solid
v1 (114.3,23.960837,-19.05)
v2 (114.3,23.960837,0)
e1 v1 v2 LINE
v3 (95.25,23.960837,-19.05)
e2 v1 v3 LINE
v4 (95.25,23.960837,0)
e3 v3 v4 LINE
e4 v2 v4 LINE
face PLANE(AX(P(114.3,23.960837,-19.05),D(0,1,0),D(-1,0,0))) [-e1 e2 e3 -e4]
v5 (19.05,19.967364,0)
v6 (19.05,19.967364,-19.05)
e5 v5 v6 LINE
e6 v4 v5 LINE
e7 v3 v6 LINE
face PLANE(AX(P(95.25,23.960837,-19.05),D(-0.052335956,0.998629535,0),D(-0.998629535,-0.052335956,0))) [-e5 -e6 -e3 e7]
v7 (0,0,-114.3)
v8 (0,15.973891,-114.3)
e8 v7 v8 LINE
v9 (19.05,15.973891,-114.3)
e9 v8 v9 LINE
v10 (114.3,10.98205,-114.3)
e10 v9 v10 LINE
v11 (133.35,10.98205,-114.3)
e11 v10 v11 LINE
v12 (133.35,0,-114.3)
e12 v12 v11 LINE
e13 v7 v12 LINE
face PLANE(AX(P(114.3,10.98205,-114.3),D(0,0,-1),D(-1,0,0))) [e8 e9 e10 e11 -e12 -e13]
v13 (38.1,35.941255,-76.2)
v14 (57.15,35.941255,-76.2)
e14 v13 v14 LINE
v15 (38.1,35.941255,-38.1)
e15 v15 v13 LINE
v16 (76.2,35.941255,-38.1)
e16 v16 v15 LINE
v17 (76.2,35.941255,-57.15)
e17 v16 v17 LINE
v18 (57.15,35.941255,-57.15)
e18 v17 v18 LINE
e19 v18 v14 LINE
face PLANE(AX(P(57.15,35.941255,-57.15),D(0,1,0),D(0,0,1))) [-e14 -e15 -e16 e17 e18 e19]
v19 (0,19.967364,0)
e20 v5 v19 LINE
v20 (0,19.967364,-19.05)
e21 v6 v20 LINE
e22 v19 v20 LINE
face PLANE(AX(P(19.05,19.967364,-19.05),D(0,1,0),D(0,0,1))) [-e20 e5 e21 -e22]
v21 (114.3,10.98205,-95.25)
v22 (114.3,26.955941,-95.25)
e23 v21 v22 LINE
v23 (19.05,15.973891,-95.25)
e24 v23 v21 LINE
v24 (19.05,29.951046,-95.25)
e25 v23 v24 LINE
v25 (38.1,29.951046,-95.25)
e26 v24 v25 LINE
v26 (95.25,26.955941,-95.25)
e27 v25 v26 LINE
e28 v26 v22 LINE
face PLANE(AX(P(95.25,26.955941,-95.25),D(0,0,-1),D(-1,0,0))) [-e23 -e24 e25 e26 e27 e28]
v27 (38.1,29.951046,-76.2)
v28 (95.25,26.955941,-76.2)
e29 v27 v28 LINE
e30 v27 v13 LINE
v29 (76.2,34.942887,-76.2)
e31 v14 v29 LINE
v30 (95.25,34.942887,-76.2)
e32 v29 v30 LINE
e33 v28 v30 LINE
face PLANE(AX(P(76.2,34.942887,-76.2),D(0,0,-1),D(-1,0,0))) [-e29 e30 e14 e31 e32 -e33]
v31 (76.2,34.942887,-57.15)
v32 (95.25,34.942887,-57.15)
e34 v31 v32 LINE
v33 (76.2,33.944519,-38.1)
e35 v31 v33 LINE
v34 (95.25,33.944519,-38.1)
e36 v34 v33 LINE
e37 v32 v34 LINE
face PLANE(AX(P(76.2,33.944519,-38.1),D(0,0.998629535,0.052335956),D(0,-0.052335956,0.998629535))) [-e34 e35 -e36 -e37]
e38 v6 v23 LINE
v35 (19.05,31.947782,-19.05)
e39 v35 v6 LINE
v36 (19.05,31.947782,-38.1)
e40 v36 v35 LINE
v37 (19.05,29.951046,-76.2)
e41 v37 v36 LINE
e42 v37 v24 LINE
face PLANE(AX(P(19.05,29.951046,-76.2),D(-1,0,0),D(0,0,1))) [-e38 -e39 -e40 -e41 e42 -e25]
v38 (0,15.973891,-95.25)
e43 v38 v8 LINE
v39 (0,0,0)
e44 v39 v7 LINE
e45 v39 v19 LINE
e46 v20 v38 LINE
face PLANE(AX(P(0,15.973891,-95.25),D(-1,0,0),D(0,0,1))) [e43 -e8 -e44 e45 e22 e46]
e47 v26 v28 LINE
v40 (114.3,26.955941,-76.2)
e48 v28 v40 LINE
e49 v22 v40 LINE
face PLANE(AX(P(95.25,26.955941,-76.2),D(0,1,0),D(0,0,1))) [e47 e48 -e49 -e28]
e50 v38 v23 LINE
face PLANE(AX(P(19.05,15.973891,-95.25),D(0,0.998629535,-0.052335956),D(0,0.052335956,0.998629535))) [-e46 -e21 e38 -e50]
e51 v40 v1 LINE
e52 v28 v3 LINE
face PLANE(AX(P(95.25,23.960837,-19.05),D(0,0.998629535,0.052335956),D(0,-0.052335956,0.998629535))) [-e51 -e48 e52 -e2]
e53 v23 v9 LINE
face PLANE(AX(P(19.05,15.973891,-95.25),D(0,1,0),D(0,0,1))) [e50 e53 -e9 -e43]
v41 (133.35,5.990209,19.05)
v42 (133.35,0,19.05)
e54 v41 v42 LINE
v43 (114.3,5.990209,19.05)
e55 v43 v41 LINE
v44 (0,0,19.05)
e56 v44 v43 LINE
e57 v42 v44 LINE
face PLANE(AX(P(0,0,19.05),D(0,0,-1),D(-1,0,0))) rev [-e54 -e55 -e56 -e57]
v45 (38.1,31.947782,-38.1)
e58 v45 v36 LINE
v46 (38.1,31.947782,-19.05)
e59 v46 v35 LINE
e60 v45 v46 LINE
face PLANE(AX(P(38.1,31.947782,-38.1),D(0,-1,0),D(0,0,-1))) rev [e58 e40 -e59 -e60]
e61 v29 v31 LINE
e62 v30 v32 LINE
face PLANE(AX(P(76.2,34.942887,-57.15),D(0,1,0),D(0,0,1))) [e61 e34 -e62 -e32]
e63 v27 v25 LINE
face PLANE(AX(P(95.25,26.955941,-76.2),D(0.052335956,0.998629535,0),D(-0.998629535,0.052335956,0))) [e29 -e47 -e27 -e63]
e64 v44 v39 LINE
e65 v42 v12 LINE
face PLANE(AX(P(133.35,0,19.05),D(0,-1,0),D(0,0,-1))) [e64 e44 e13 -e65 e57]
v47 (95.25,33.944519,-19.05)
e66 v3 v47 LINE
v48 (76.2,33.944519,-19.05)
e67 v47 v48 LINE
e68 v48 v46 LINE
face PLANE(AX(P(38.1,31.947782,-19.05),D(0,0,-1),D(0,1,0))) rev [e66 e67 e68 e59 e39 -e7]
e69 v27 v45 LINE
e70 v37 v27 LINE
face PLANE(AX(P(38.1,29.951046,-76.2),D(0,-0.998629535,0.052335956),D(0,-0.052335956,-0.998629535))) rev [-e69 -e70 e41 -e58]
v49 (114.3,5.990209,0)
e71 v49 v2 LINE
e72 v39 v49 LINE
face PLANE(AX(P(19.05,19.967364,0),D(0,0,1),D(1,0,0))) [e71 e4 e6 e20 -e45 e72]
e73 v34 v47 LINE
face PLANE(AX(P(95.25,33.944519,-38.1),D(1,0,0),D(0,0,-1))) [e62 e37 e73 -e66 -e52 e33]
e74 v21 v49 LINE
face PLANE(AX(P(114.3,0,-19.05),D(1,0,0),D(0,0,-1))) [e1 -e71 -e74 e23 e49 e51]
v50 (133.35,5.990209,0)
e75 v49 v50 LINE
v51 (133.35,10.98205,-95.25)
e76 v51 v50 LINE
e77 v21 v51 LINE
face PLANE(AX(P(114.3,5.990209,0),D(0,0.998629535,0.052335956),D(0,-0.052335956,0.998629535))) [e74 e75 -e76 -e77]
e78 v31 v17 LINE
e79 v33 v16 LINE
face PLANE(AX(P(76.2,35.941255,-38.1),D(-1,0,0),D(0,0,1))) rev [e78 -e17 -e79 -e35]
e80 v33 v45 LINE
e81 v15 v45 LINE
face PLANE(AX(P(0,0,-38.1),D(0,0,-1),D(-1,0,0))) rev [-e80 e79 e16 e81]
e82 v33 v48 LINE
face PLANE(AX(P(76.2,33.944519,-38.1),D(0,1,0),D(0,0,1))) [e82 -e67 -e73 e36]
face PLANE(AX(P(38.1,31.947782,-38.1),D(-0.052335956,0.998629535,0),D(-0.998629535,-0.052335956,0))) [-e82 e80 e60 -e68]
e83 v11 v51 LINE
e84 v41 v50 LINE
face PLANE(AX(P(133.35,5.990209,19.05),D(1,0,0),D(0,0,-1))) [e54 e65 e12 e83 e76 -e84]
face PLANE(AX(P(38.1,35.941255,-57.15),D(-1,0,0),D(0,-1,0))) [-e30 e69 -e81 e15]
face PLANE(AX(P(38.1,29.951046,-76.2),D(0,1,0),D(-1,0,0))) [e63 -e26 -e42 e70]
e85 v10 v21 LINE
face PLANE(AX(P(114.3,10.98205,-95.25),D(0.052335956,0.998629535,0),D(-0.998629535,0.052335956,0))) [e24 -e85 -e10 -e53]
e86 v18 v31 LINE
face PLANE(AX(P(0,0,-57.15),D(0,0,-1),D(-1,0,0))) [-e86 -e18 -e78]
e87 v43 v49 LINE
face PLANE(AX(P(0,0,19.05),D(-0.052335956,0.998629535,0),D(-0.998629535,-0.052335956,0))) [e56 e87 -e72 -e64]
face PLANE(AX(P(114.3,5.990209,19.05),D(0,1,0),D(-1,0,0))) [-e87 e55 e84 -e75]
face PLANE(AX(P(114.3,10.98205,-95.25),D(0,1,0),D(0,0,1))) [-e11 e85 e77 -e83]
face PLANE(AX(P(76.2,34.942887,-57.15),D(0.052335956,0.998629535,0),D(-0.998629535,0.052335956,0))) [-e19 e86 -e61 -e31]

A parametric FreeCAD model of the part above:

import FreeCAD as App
import Part
import Sketcher

V = App.Vector
Q = App.Units.Quantity


def add_polygon(sketch, points):
    """Adds a closed chain of lines whose ends are joined by coincident constraints."""
    first, n = sketch.GeometryCount, len(points)
    for a, b in zip(points, points[1:] + points[:1]):
        sketch.addGeometry(Part.LineSegment(App.Vector(*a, 0), App.Vector(*b, 0)), False)
    for i in range(n):
        sketch.addConstraint(Sketcher.Constraint("Coincident", first + i, 2, first + (i + 1) % n, 1))

doc = App.newDocument("Part")
body = doc.addObject("PartDesign::Body", "Body")

# Sketch on XY plane
sketch1 = body.newObject("Sketcher::SketchObject", "Sketch")
sketch1.AttachmentSupport = (doc.getObject("XY_Plane"), [""])
sketch1.MapMode = "FlatFace"
add_polygon(sketch1, [(114, 6), (0, 0), (133, 0), (133, 6)])  # lines 0-3
sketch1.addConstraint(Sketcher.Constraint("Horizontal", 1))
sketch1.addConstraint(Sketcher.Constraint("Vertical", 2))
sketch1.addConstraint(Sketcher.Constraint("Horizontal", 3))
sketch1.addConstraint(Sketcher.Constraint("Coincident", 0, 2, -1, 1))
sketch1.addConstraint(Sketcher.Constraint("Angle", 0, Q("-177 deg")))
sketch1.addConstraint(Sketcher.Constraint("DistanceX", 1, 1, 1, 2, Q("5.25 in")))
sketch1.addConstraint(Sketcher.Constraint("DistanceX", 3, 2, 3, 1, Q("0.75 in")))
pad1 = body.newObject("PartDesign::Pad", "Pad")
pad1.Profile = sketch1
pad1.Length = Q("0.75 in")

# Sketch on YZ plane
sketch2 = body.newObject("Sketcher::SketchObject", "Sketch001")
sketch2.AttachmentSupport = (doc.getObject("YZ_Plane"), [""])
sketch2.MapMode = "FlatFace"
sketch2.AttachmentOffset = App.Placement(V(0, 0, 5.25 * 25.4), App.Rotation())
add_polygon(sketch2, [(6, 0), (0, 0), (0, -114), (11, -114), (11, -95)])  # lines 0-4
sketch2.addConstraint(Sketcher.Constraint("Horizontal", 0))
sketch2.addConstraint(Sketcher.Constraint("Vertical", 1))
sketch2.addConstraint(Sketcher.Constraint("Horizontal", 2))
sketch2.addConstraint(Sketcher.Constraint("Vertical", 3))
sketch2.addConstraint(Sketcher.Constraint("Coincident", 0, 2, -1, 1))
sketch2.addConstraint(Sketcher.Constraint("DistanceY", 1, 2, 1, 1, Q("4.5 in")))
sketch2.addConstraint(Sketcher.Constraint("Angle", 4, Q("93 deg")))
sketch2.addConstraint(Sketcher.Constraint("DistanceY", 3, 1, 3, 2, Q("0.75 in")))
sketch2.addConstraint(Sketcher.Constraint("DistanceX", 0, 2, 0, 1, 5.990209))
pad2 = body.newObject("PartDesign::Pad", "Pad001")
pad2.Profile = sketch2
pad2.Length = Q("0.75 in")
pad2.Reversed = True

# Sketch on XY plane
sketch3 = body.newObject("Sketcher::SketchObject", "Sketch002")
sketch3.AttachmentSupport = (doc.getObject("XY_Plane"), [""])
sketch3.MapMode = "FlatFace"
sketch3.AttachmentOffset = App.Placement(V(0, 0, -4.5 * 25.4), App.Rotation())
add_polygon(sketch3, [(114, 11), (114, 0), (0, 0), (0, 16), (19, 16)])  # lines 0-4
sketch3.addConstraint(Sketcher.Constraint("Vertical", 0))
sketch3.addConstraint(Sketcher.Constraint("Horizontal", 1))
sketch3.addConstraint(Sketcher.Constraint("Vertical", 2))
sketch3.addConstraint(Sketcher.Constraint("Horizontal", 3))
sketch3.addConstraint(Sketcher.Constraint("Coincident", 1, 2, -1, 1))
sketch3.addConstraint(Sketcher.Constraint("DistanceX", 1, 2, 1, 1, Q("4.5 in")))
sketch3.addConstraint(Sketcher.Constraint("Angle", 4, Q("-3 deg")))
sketch3.addConstraint(Sketcher.Constraint("DistanceX", 3, 1, 3, 2, Q("0.75 in")))
sketch3.addConstraint(Sketcher.Constraint("DistanceY", 0, 2, 0, 1, 10.98205))
pad3 = body.newObject("PartDesign::Pad", "Pad002")
pad3.Profile = sketch3
pad3.Length = Q("0.75 in")

# Sketch on YZ plane
sketch4 = body.newObject("Sketcher::SketchObject", "Sketch003")
sketch4.AttachmentSupport = (doc.getObject("YZ_Plane"), [""])
sketch4.MapMode = "FlatFace"
add_polygon(sketch4, [(20, -19), (16, -95), (0, -95), (0, 0), (20, 0)])  # lines 0-4
sketch4.addConstraint(Sketcher.Constraint("Horizontal", 1))
sketch4.addConstraint(Sketcher.Constraint("Vertical", 2))
sketch4.addConstraint(Sketcher.Constraint("Horizontal", 3))
sketch4.addConstraint(Sketcher.Constraint("Vertical", 4))
sketch4.addConstraint(Sketcher.Constraint("Coincident", 2, 2, -1, 1))
sketch4.addConstraint(Sketcher.Constraint("Angle", 0, Q("-93 deg")))
sketch4.addConstraint(Sketcher.Constraint("DistanceY", 0, 2, 4, 2, Q("3 in")))
sketch4.addConstraint(Sketcher.Constraint("DistanceY", 2, 1, 2, 2, Q("3.75 in")))
sketch4.addConstraint(Sketcher.Constraint("DistanceX", 1, 2, 1, 1, 15.973891))
pad4 = body.newObject("PartDesign::Pad", "Pad003")
pad4.Profile = sketch4
pad4.Length = Q("0.75 in")

# Sketch on XY plane
sketch5 = body.newObject("Sketcher::SketchObject", "Sketch004")
sketch5.AttachmentSupport = (doc.getObject("XY_Plane"), [""])
sketch5.MapMode = "FlatFace"
add_polygon(sketch5, [(95, 24), (19, 20), (19, 0), (114, 0), (114, 24)])  # lines 0-4
sketch5.addConstraint(Sketcher.Constraint("Vertical", 1))
sketch5.addConstraint(Sketcher.Constraint("Horizontal", 2))
sketch5.addConstraint(Sketcher.Constraint("Vertical", 3))
sketch5.addConstraint(Sketcher.Constraint("Horizontal", 4))
sketch5.addConstraint(Sketcher.Constraint("PointOnObject", 1, 2, -1))
sketch5.addConstraint(Sketcher.Constraint("Angle", 0, Q("-177 deg")))
sketch5.addConstraint(Sketcher.Constraint("DistanceX", 0, 2, 4, 2, Q("3 in")))
sketch5.addConstraint(Sketcher.Constraint("DistanceX", 2, 1, 2, 2, Q("3.75 in")))
sketch5.addConstraint(Sketcher.Constraint("DistanceX", -1, 1, 2, 2, Q("4.5 in")))
sketch5.addConstraint(Sketcher.Constraint("DistanceY", 1, 2, 1, 1, 19.967364))
pad5 = body.newObject("PartDesign::Pad", "Pad004")
pad5.Profile = sketch5
pad5.Length = Q("0.75 in")
pad5.Reversed = True

# Sketch on YZ plane
sketch6 = body.newObject("Sketcher::SketchObject", "Sketch005")
sketch6.AttachmentSupport = (doc.getObject("YZ_Plane"), [""])
sketch6.MapMode = "FlatFace"
sketch6.AttachmentOffset = App.Placement(V(0, 0, 4.5 * 25.4), App.Rotation())
add_polygon(sketch6, [(27, -76), (24, -19), (0, -19), (0, -95), (27, -95)])  # lines 0-4
sketch6.addConstraint(Sketcher.Constraint("Horizontal", 1))
sketch6.addConstraint(Sketcher.Constraint("Vertical", 2))
sketch6.addConstraint(Sketcher.Constraint("Horizontal", 3))
sketch6.addConstraint(Sketcher.Constraint("Vertical", 4))
sketch6.addConstraint(Sketcher.Constraint("PointOnObject", 1, 2, -2))
sketch6.addConstraint(Sketcher.Constraint("DistanceY", 2, 2, 2, 1, Q("3 in")))
sketch6.addConstraint(Sketcher.Constraint("DistanceY", 4, 2, -1, 1, Q("3 in")))
sketch6.addConstraint(Sketcher.Constraint("Angle", 0, Q("93 deg")))
sketch6.addConstraint(Sketcher.Constraint("DistanceY", 4, 1, 4, 2, Q("0.75 in")))
sketch6.addConstraint(Sketcher.Constraint("DistanceX", 3, 1, 3, 2, 26.955941))
pad6 = body.newObject("PartDesign::Pad", "Pad005")
pad6.Profile = sketch6
pad6.Length = Q("0.75 in")
pad6.Reversed = True

# Sketch on XY plane
sketch7 = body.newObject("Sketcher::SketchObject", "Sketch006")
sketch7.AttachmentSupport = (doc.getObject("XY_Plane"), [""])
sketch7.MapMode = "FlatFace"
sketch7.AttachmentOffset = App.Placement(V(0, 0, -3.75 * 25.4), App.Rotation())
add_polygon(sketch7, [(38, 30), (95, 27), (95, 0), (19, 0), (19, 30)])  # lines 0-4
sketch7.addConstraint(Sketcher.Constraint("Vertical", 1))
sketch7.addConstraint(Sketcher.Constraint("Horizontal", 2))
sketch7.addConstraint(Sketcher.Constraint("Vertical", 3))
sketch7.addConstraint(Sketcher.Constraint("Horizontal", 4))
sketch7.addConstraint(Sketcher.Constraint("PointOnObject", 1, 2, -1))
sketch7.addConstraint(Sketcher.Constraint("DistanceX", 2, 2, 2, 1, Q("3 in")))
sketch7.addConstraint(Sketcher.Constraint("Angle", 0, Q("-3 deg")))
sketch7.addConstraint(Sketcher.Constraint("DistanceX", 4, 1, 4, 2, Q("0.75 in")))
sketch7.addConstraint(Sketcher.Constraint("DistanceX", -1, 1, 4, 2, Q("1.5 in")))
sketch7.addConstraint(Sketcher.Constraint("DistanceY", 1, 2, 1, 1, 26.955941))
pad7 = body.newObject("PartDesign::Pad", "Pad006")
pad7.Profile = sketch7
pad7.Length = Q("0.75 in")

# Sketch on YZ plane
sketch8 = body.newObject("Sketcher::SketchObject", "Sketch007")
sketch8.AttachmentSupport = (doc.getObject("YZ_Plane"), [""])
sketch8.MapMode = "FlatFace"
sketch8.AttachmentOffset = App.Placement(V(0, 0, 0.75 * 25.4), App.Rotation())
add_polygon(sketch8, [(32, -38), (30, -76), (0, -76), (0, -19), (32, -19)])  # lines 0-4
sketch8.addConstraint(Sketcher.Constraint("Horizontal", 1))
sketch8.addConstraint(Sketcher.Constraint("Vertical", 2))
sketch8.addConstraint(Sketcher.Constraint("Horizontal", 3))
sketch8.addConstraint(Sketcher.Constraint("Vertical", 4))
sketch8.addConstraint(Sketcher.Constraint("PointOnObject", 1, 2, -2))
sketch8.addConstraint(Sketcher.Constraint("DistanceY", 0, 2, -1, 1, Q("3 in")))
sketch8.addConstraint(Sketcher.Constraint("Angle", 0, Q("-93 deg")))
sketch8.addConstraint(Sketcher.Constraint("DistanceY", 2, 1, 2, 2, Q("2.25 in")))
sketch8.addConstraint(Sketcher.Constraint("DistanceY", 4, 2, 4, 1, Q("0.75 in")))
sketch8.addConstraint(Sketcher.Constraint("DistanceX", 1, 2, 1, 1, 29.951046))
pad8 = body.newObject("PartDesign::Pad", "Pad007")
pad8.Profile = sketch8
pad8.Length = Q("0.75 in")

# Sketch on XY plane
sketch9 = body.newObject("Sketcher::SketchObject", "Sketch008")
sketch9.AttachmentSupport = (doc.getObject("XY_Plane"), [""])
sketch9.MapMode = "FlatFace"
sketch9.AttachmentOffset = App.Placement(V(0, 0, -0.75 * 25.4), App.Rotation())
add_polygon(sketch9, [(76, 34), (38, 32), (38, 0), (95, 0), (95, 34)])  # lines 0-4
sketch9.addConstraint(Sketcher.Constraint("Vertical", 1))
sketch9.addConstraint(Sketcher.Constraint("Horizontal", 2))
sketch9.addConstraint(Sketcher.Constraint("Vertical", 3))
sketch9.addConstraint(Sketcher.Constraint("Horizontal", 4))
sketch9.addConstraint(Sketcher.Constraint("PointOnObject", 1, 2, -1))
sketch9.addConstraint(Sketcher.Constraint("DistanceX", -1, 1, 4, 2, Q("3 in")))
sketch9.addConstraint(Sketcher.Constraint("Angle", 0, Q("-177 deg")))
sketch9.addConstraint(Sketcher.Constraint("DistanceX", 2, 1, 2, 2, Q("2.25 in")))
sketch9.addConstraint(Sketcher.Constraint("DistanceX", 4, 2, 4, 1, Q("0.75 in")))
sketch9.addConstraint(Sketcher.Constraint("DistanceY", 3, 1, 3, 2, 33.944519))
pad9 = body.newObject("PartDesign::Pad", "Pad008")
pad9.Profile = sketch9
pad9.Length = Q("0.75 in")
pad9.Reversed = True

# Sketch on YZ plane
sketch10 = body.newObject("Sketcher::SketchObject", "Sketch009")
sketch10.AttachmentSupport = (doc.getObject("YZ_Plane"), [""])
sketch10.MapMode = "FlatFace"
sketch10.AttachmentOffset = App.Placement(V(0, 0, 3.75 * 25.4), App.Rotation())
add_polygon(sketch10, [(34, -38), (0, -38), (0, -76), (35, -76), (35, -57)])  # lines 0-4
sketch10.addConstraint(Sketcher.Constraint("Horizontal", 0))
sketch10.addConstraint(Sketcher.Constraint("Vertical", 1))
sketch10.addConstraint(Sketcher.Constraint("Horizontal", 2))
sketch10.addConstraint(Sketcher.Constraint("Vertical", 3))
sketch10.addConstraint(Sketcher.Constraint("PointOnObject", 0, 2, -2))
sketch10.addConstraint(Sketcher.Constraint("DistanceY", 1, 2, 1, 1, Q("1.5 in")))
sketch10.addConstraint(Sketcher.Constraint("DistanceY", 1, 2, -1, 1, Q("3 in")))
sketch10.addConstraint(Sketcher.Constraint("Angle", 4, Q("93 deg")))
sketch10.addConstraint(Sketcher.Constraint("DistanceY", 3, 1, 3, 2, Q("0.75 in")))
sketch10.addConstraint(Sketcher.Constraint("DistanceX", 0, 2, 0, 1, 33.944519))
pad10 = body.newObject("PartDesign::Pad", "Pad009")
pad10.Profile = sketch10
pad10.Length = Q("0.75 in")
pad10.Reversed = True

# Sketch on XY plane
sketch11 = body.newObject("Sketcher::SketchObject", "Sketch010")
sketch11.AttachmentSupport = (doc.getObject("XY_Plane"), [""])
sketch11.MapMode = "FlatFace"
sketch11.AttachmentOffset = App.Placement(V(0, 0, -3 * 25.4), App.Rotation())
add_polygon(sketch11, [(57, 36), (76, 35), (76, 0), (38, 0), (38, 36)])  # lines 0-4
sketch11.addConstraint(Sketcher.Constraint("Vertical", 1))
sketch11.addConstraint(Sketcher.Constraint("Horizontal", 2))
sketch11.addConstraint(Sketcher.Constraint("Vertical", 3))
sketch11.addConstraint(Sketcher.Constraint("Horizontal", 4))
sketch11.addConstraint(Sketcher.Constraint("PointOnObject", 1, 2, -1))
sketch11.addConstraint(Sketcher.Constraint("DistanceX", 2, 2, 2, 1, Q("1.5 in")))
sketch11.addConstraint(Sketcher.Constraint("DistanceX", -1, 1, 0, 2, Q("3 in")))
sketch11.addConstraint(Sketcher.Constraint("Angle", 0, Q("-3 deg")))
sketch11.addConstraint(Sketcher.Constraint("DistanceX", 4, 1, 4, 2, Q("0.75 in")))
sketch11.addConstraint(Sketcher.Constraint("DistanceY", 1, 2, 1, 1, 34.942887))
pad11 = body.newObject("PartDesign::Pad", "Pad010")
pad11.Profile = sketch11
pad11.Length = Q("0.75 in")

# Sketch on XY plane
sketch12 = body.newObject("Sketcher::SketchObject", "Sketch011")
sketch12.AttachmentSupport = (doc.getObject("XY_Plane"), [""])
sketch12.MapMode = "FlatFace"
sketch12.AttachmentOffset = App.Placement(V(0, 0, -2.25 * 25.4), App.Rotation())
add_polygon(sketch12, [(38, 36), (38, 0), (76, 0), (76, 36)])  # lines 0-3
sketch12.addConstraint(Sketcher.Constraint("Vertical", 0))
sketch12.addConstraint(Sketcher.Constraint("Horizontal", 1))
sketch12.addConstraint(Sketcher.Constraint("Vertical", 2))
sketch12.addConstraint(Sketcher.Constraint("Horizontal", 3))
sketch12.addConstraint(Sketcher.Constraint("PointOnObject", 0, 2, -1))
sketch12.addConstraint(Sketcher.Constraint("DistanceX", 1, 1, 1, 2, Q("1.5 in")))
sketch12.addConstraint(Sketcher.Constraint("DistanceX", -1, 1, 1, 2, Q("3 in")))
sketch12.addConstraint(Sketcher.Constraint("DistanceY", 0, 2, 0, 1, 35.941255))
pad12 = body.newObject("PartDesign::Pad", "Pad011")
pad12.Profile = sketch12
pad12.Length = Q("0.75 in")

doc.recompute()
